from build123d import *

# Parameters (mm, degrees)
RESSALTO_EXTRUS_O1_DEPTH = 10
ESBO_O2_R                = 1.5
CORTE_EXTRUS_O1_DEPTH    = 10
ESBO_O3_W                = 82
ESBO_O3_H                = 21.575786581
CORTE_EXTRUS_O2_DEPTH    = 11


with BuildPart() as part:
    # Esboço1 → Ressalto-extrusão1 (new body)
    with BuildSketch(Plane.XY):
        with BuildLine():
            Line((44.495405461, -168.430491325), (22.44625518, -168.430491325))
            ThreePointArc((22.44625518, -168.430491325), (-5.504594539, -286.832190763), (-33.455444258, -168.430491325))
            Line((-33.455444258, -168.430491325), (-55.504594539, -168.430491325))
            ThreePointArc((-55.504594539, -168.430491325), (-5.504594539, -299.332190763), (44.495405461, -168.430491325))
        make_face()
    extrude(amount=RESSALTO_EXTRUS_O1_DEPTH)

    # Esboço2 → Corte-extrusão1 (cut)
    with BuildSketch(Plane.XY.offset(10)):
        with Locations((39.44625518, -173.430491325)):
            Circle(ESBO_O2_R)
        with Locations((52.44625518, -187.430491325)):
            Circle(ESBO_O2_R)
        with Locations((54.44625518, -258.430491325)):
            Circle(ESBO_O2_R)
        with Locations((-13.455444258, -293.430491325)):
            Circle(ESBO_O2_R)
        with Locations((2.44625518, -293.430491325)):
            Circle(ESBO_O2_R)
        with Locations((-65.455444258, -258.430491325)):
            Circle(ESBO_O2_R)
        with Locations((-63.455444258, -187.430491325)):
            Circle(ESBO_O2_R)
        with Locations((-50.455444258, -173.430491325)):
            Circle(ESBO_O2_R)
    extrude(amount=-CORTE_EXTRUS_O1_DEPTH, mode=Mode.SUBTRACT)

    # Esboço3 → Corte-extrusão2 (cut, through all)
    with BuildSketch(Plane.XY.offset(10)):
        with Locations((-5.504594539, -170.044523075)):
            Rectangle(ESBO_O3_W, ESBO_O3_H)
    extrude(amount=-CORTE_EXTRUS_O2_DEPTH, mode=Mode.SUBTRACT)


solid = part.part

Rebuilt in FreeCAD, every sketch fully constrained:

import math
import FreeCAD as App
import Part
import Sketcher
Q = App.Units.Quantity

doc = App.newDocument("Part")
body = doc.addObject("PartDesign::Body", "Body")

sketch1 = body.newObject("Sketcher::SketchObject", "Sketch")
sketch1.AttachmentSupport = (doc.getObject("XY_Plane"), [""])
sketch1.MapMode = "FlatFace"
sketch1.addGeometry(Part.LineSegment(App.Vector(44, -168, 0), App.Vector(22, -168, 0)), False)
sketch1.addGeometry(Part.ArcOfCircle(Part.Circle(App.Vector(-6, -224, 0), App.Vector(0, 0, 1), 62), math.radians(117), math.radians(423)), False)
sketch1.addGeometry(Part.LineSegment(App.Vector(-33, -168, 0), App.Vector(-56, -168, 0)), False)
sketch1.addGeometry(Part.ArcOfCircle(Part.Circle(App.Vector(-6, -224, 0), App.Vector(0, 0, 1), 75), math.radians(132), math.radians(408)), False)
sketch1.addConstraint(Sketcher.Constraint("Coincident", 0, 2, 1, 2))
sketch1.addConstraint(Sketcher.Constraint("Coincident", 1, 1, 2, 1))
sketch1.addConstraint(Sketcher.Constraint("Coincident", 2, 2, 3, 1))
sketch1.addConstraint(Sketcher.Constraint("Coincident", 3, 2, 0, 1))
sketch1.addConstraint(Sketcher.Constraint("Horizontal", 0))
sketch1.addConstraint(Sketcher.Constraint("Horizontal", 2))
sketch1.addConstraint(Sketcher.Constraint("Coincident", 3, 3, 1, 3))
sketch1.addConstraint(Sketcher.Constraint("Horizontal", 0, 2, 1, 1))
sketch1.addConstraint(Sketcher.Constraint("Radius", 3, Q("75 mm")))
sketch1.addConstraint(Sketcher.Constraint("Radius", 1, Q("62.5 mm")))
sketch1.addConstraint(Sketcher.Constraint("DistanceX", 2, 2, 1, 3, Q("50 mm")))
sketch1.addConstraint(Sketcher.Constraint("DistanceY", 1, 3, -1, 1, Q("224.332191 mm")))
sketch1.addConstraint(Sketcher.Constraint("DistanceX", 1, 3, -1, 1, Q("5.504595 mm")))
pad1 = body.newObject("PartDesign::Pad", "Pad")
pad1.Profile = sketch1
pad1.Length = 10

sketch2 = body.newObject("Sketcher::SketchObject", "Sketch001")
sketch2.AttachmentSupport = (doc.getObject("XY_Plane"), [""])
sketch2.MapMode = "FlatFace"
sketch2.AttachmentOffset = App.Placement(App.Vector(0, 0, 10), App.Rotation())
sketch2.addGeometry(Part.Circle(App.Vector(39.4, -173.4, 0), App.Vector(0, 0, 1), 1.5), False)
sketch2.addGeometry(Part.Circle(App.Vector(52.4, -187.4, 0), App.Vector(0, 0, 1), 1.5), False)
sketch2.addGeometry(Part.Circle(App.Vector(54.4, -258.4, 0), App.Vector(0, 0, 1), 1.5), False)
sketch2.addGeometry(Part.Circle(App.Vector(-13.5, -293.4, 0), App.Vector(0, 0, 1), 1.5), False)
sketch2.addGeometry(Part.Circle(App.Vector(2.4, -293.4, 0), App.Vector(0, 0, 1), 1.5), False)
sketch2.addGeometry(Part.Circle(App.Vector(-65.5, -258.4, 0), App.Vector(0, 0, 1), 1.5), False)
sketch2.addGeometry(Part.Circle(App.Vector(-63.5, -187.4, 0), App.Vector(0, 0, 1), 1.5), False)
sketch2.addGeometry(Part.Circle(App.Vector(-50.5, -173.4, 0), App.Vector(0, 0, 1), 1.5), False)
sketch2.addConstraint(Sketcher.Constraint("Equal", 0, 1))
sketch2.addConstraint(Sketcher.Constraint("Equal", 1, 2))
sketch2.addConstraint(Sketcher.Constraint("Equal", 2, 3))
sketch2.addConstraint(Sketcher.Constraint("Equal", 3, 4))
sketch2.addConstraint(Sketcher.Constraint("Equal", 4, 5))
sketch2.addConstraint(Sketcher.Constraint("Equal", 5, 6))
sketch2.addConstraint(Sketcher.Constraint("Equal", 6, 7))
sketch2.addConstraint(Sketcher.Constraint("Horizontal", 3, 3, 4, 3))
sketch2.addConstraint(Sketcher.Constraint("Horizontal", 2, 3, 5, 3))
sketch2.addConstraint(Sketcher.Constraint("Horizontal", 1, 3, 6, 3))
sketch2.addConstraint(Sketcher.Constraint("Horizontal", 0, 3, 7, 3))
sketch2.addConstraint(Sketcher.Constraint("Diameter", 0, Q("3 mm")))
sketch2.addConstraint(Sketcher.Constraint("DistanceX", 0, 3, 1, 3, Q("13 mm")))
sketch2.addConstraint(Sketcher.Constraint("DistanceY", 1, 3, 0, 3, Q("14 mm")))
sketch2.addConstraint(Sketcher.Constraint("DistanceX", 1, 3, 2, 3, Q("2 mm")))
sketch2.addConstraint(Sketcher.Constraint("DistanceY", 2, 3, 1, 3, Q("71 mm")))
sketch2.addConstraint(Sketcher.Constraint("DistanceY", 3, 3, 2, 3, Q("35 mm")))
sketch2.addConstraint(Sketcher.Constraint("DistanceX", 4, 3, 2, 3, Q("52 mm")))
sketch2.addConstraint(Sketcher.Constraint("DistanceX", 5, 3, 3, 3, Q("52 mm")))
sketch2.addConstraint(Sketcher.Constraint("DistanceX", 5, 3, 6, 3, Q("2 mm")))
sketch2.addConstraint(Sketcher.Constraint("DistanceX", 6, 3, 7, 3, Q("13 mm")))
sketch2.addConstraint(Sketcher.Constraint("DistanceX", 3, 3, 2, 3, Q("67.901699 mm")))
sketch2.addConstraint(Sketcher.Constraint("DistanceY", 0, 3, -1, 1, Q("173.430491 mm")))
sketch2.addConstraint(Sketcher.Constraint("DistanceX", -1, 1, 0, 3, Q("39.446255 mm")))
pocket1 = body.newObject("PartDesign::Pocket", "Pocket")
pocket1.Profile = sketch2
pocket1.Length = 10

sketch3 = body.newObject("Sketcher::SketchObject", "Sketch002")
sketch3.AttachmentSupport = (doc.getObject("XY_Plane"), [""])
sketch3.MapMode = "FlatFace"
sketch3.AttachmentOffset = App.Placement(App.Vector(0, 0, 10), App.Rotation())
sketch3.addGeometry(Part.LineSegment(App.Vector(-47, -159, 0), App.Vector(-47, -181, 0)), False)
sketch3.addGeometry(Part.LineSegment(App.Vector(-47, -181, 0), App.Vector(35, -181, 0)), False)
sketch3.addGeometry(Part.LineSegment(App.Vector(35, -181, 0), App.Vector(35, -159, 0)), False)
sketch3.addGeometry(Part.LineSegment(App.Vector(35, -159, 0), App.Vector(-47, -159, 0)), False)
sketch3.addConstraint(Sketcher.Constraint("Coincident", 0, 2, 1, 1))
sketch3.addConstraint(Sketcher.Constraint("Coincident", 1, 2, 2, 1))
sketch3.addConstraint(Sketcher.Constraint("Coincident", 2, 2, 3, 1))
sketch3.addConstraint(Sketcher.Constraint("Coincident", 3, 2, 0, 1))
sketch3.addConstraint(Sketcher.Constraint("Vertical", 0))
sketch3.addConstraint(Sketcher.Constraint("Horizontal", 1))
sketch3.addConstraint(Sketcher.Constraint("Vertical", 2))
sketch3.addConstraint(Sketcher.Constraint("Horizontal", 3))
sketch3.addConstraint(Sketcher.Constraint("DistanceX", 1, 1, 1, 2, Q("82 mm")))
sketch3.addConstraint(Sketcher.Constraint("DistanceY", 0, 2, 0, 1, Q("21.575787 mm")))
sketch3.addConstraint(Sketcher.Constraint("DistanceY", 2, 2, -1, 1, Q("159.25663 mm")))
sketch3.addConstraint(Sketcher.Constraint("DistanceX", 0, 2, -1, 1, Q("46.504595 mm")))
pocket2 = body.newObject("PartDesign::Pocket", "Pocket001")
pocket2.Profile = sketch3
pocket2.Type = "ThroughAll"

doc.recompute()
